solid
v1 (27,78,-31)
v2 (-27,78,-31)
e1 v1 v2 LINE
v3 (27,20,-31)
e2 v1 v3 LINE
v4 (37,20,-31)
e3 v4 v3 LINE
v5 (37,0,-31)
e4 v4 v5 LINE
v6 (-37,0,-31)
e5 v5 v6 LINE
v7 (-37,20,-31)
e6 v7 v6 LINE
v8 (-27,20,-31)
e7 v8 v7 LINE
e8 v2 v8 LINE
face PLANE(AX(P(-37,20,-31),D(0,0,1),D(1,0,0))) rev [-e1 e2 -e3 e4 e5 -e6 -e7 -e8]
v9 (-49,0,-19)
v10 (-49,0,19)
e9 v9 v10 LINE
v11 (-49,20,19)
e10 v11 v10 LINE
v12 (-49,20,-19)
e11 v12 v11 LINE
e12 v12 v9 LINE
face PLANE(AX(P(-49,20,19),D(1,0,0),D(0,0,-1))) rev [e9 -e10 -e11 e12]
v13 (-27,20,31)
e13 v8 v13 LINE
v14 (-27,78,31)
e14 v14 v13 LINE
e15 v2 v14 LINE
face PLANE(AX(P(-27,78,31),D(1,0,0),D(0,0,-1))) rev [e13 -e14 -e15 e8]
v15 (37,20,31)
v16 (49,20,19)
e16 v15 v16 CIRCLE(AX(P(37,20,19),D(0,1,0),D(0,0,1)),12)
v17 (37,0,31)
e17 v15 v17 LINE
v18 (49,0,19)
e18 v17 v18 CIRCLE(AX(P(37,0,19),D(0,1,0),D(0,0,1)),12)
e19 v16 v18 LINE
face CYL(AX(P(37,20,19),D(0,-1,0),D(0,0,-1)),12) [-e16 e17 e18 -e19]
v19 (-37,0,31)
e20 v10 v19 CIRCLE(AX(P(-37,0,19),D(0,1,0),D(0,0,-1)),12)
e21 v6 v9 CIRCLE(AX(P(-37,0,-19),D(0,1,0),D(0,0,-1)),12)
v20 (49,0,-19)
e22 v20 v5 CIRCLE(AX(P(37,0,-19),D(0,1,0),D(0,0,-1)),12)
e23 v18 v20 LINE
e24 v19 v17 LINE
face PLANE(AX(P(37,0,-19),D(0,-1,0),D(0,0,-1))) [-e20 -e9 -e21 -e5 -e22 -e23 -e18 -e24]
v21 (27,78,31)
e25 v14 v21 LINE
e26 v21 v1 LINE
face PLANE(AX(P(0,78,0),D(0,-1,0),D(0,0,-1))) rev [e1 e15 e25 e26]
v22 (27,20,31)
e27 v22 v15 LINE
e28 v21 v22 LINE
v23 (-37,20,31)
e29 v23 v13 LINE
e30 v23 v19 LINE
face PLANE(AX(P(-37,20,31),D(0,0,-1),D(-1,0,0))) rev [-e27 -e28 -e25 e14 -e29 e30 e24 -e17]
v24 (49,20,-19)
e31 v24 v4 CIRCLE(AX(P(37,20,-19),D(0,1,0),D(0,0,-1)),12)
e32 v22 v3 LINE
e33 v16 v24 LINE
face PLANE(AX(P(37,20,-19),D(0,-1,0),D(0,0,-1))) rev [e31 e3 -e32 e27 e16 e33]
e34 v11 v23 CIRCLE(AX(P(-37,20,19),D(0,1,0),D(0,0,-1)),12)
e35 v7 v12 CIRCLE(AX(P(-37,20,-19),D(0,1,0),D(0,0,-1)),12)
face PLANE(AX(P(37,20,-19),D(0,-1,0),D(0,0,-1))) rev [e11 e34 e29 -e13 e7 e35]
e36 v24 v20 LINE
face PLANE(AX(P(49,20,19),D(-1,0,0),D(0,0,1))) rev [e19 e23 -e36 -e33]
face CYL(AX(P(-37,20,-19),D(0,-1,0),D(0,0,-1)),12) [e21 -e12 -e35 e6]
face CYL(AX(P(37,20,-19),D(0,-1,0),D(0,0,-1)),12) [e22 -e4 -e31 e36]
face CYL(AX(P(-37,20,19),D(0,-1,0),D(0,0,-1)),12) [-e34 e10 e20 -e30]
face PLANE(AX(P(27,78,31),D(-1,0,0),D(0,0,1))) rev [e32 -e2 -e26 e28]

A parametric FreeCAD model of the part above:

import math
import FreeCAD as App
import Part
import Sketcher

V = App.Vector


def add_polygon(sketch, points):
    """Adds a closed chain of lines whose ends are joined by coincident constraints."""
    first, n = sketch.GeometryCount, len(points)
    for a, b in zip(points, points[1:] + points[:1]):
        sketch.addGeometry(Part.LineSegment(App.Vector(*a, 0), App.Vector(*b, 0)), False)
    for i in range(n):
        sketch.addConstraint(Sketcher.Constraint("Coincident", first + i, 2, first + (i + 1) % n, 1))

doc = App.newDocument("Part")
params = doc.addObject("Spreadsheet::Sheet", "Params")
for row, (alias, value) in enumerate([
    ("sketch1_radius", "12 mm"),
    ("sketch1_width", "74 mm"),
    ("sketch1_height", "38 mm"),
    ("pad1_length", "20 mm"),
    ("sketch2_width", "54 mm"),
    ("sketch2_height", "62 mm"),
    ("pad2_length", "58 mm"),
], start=1):
    params.set(f"A{row}", alias)
    params.set(f"B{row}", "=" + value)
    params.setAlias(f"B{row}", alias)

body = doc.addObject("PartDesign::Body", "Body")

# Sketch on XZ plane
sketch1 = body.newObject("Sketcher::SketchObject", "Sketch")
sketch1.AttachmentSupport = (doc.getObject("XZ_Plane"), [""])
sketch1.MapMode = "FlatFace"
sketch1.addGeometry([
    Part.LineSegment(V(-37, 31, 0), V(37, 31, 0)),  # 0
    Part.ArcOfCircle(Part.Circle(V(37, 19, 0), V(0, 0, 1), 12), math.radians(0), math.radians(90)),  # 1
    Part.LineSegment(V(49, 19, 0), V(49, -19, 0)),  # 2
    Part.ArcOfCircle(Part.Circle(V(37, -19, 0), V(0, 0, 1), 12), math.radians(-90), math.radians(0)),  # 3
    Part.LineSegment(V(37, -31, 0), V(-37, -31, 0)),  # 4
    Part.ArcOfCircle(Part.Circle(V(-37, -19, 0), V(0, 0, 1), 12), math.radians(-180), math.radians(-90)),  # 5
    Part.LineSegment(V(-49, -19, 0), V(-49, 19, 0)),  # 6
    Part.ArcOfCircle(Part.Circle(V(-37, 19, 0), V(0, 0, 1), 12), math.radians(90), math.radians(180)),  # 7
], False)
sketch1.addConstraint([
    Sketcher.Constraint("Tangent", 0, 2, 1, 2),
    Sketcher.Constraint("Tangent", 1, 1, 2, 1),
    Sketcher.Constraint("Tangent", 2, 2, 3, 2),
    Sketcher.Constraint("Tangent", 3, 1, 4, 1),
    Sketcher.Constraint("Tangent", 4, 2, 5, 2),
    Sketcher.Constraint("Tangent", 5, 1, 6, 1),
    Sketcher.Constraint("Tangent", 6, 2, 7, 2),
    Sketcher.Constraint("Tangent", 7, 1, 0, 1),
    Sketcher.Constraint("Horizontal", 0),
    Sketcher.Constraint("Vertical", 2),
    Sketcher.Constraint("Horizontal", 4),
    Sketcher.Constraint("Vertical", 6),
    Sketcher.Constraint("Equal", 1, 3),
    Sketcher.Constraint("Equal", 3, 5),
    Sketcher.Constraint("Equal", 5, 7),
    Sketcher.Constraint("Symmetric", 1, 3, 5, 3, -1, 1),
    Sketcher.Constraint("Radius", 1, 12.0),
    Sketcher.Constraint("DistanceX", 0, 1, 0, 2, 74.0),
    Sketcher.Constraint("DistanceY", 2, 2, 2, 1, 38.0),
])
sketch1.setExpression("Constraints[16]", "Params.sketch1_radius")
sketch1.setExpression("Constraints[17]", "Params.sketch1_width")
sketch1.setExpression("Constraints[18]", "Params.sketch1_height")
pad1 = body.newObject("PartDesign::Pad", "Pad")
pad1.Profile = sketch1
pad1.setExpression("Length", "Params.pad1_length")
pad1.Reversed = True

# Sketch on XZ plane
sketch2 = body.newObject("Sketcher::SketchObject", "Sketch001")
sketch2.AttachmentSupport = (doc.getObject("XZ_Plane"), [""])
sketch2.MapMode = "FlatFace"
sketch2.AttachmentOffset = App.Placement(V(0, 0, -20), App.Rotation())
add_polygon(sketch2, [(-27, -31), (-27, 31), (27, 31), (27, -31)])  # lines 0-3
sketch2.addConstraint([
    Sketcher.Constraint("Vertical", 0),
    Sketcher.Constraint("Horizontal", 1),
    Sketcher.Constraint("Vertical", 2),
    Sketcher.Constraint("Horizontal", 3),
    Sketcher.Constraint("Symmetric", 0, 2, 2, 2, -1, 1),
    Sketcher.Constraint("DistanceX", 1, 1, 1, 2, 54.0),
    Sketcher.Constraint("DistanceY", 0, 1, 0, 2, 62.0),
])
sketch2.setExpression("Constraints[9]", "Params.sketch2_width")
sketch2.setExpression("Constraints[10]", "Params.sketch2_height")
pad2 = body.newObject("PartDesign::Pad", "Pad001")
pad2.Profile = sketch2
pad2.setExpression("Length", "Params.pad2_length")
pad2.Reversed = True

doc.recompute()
